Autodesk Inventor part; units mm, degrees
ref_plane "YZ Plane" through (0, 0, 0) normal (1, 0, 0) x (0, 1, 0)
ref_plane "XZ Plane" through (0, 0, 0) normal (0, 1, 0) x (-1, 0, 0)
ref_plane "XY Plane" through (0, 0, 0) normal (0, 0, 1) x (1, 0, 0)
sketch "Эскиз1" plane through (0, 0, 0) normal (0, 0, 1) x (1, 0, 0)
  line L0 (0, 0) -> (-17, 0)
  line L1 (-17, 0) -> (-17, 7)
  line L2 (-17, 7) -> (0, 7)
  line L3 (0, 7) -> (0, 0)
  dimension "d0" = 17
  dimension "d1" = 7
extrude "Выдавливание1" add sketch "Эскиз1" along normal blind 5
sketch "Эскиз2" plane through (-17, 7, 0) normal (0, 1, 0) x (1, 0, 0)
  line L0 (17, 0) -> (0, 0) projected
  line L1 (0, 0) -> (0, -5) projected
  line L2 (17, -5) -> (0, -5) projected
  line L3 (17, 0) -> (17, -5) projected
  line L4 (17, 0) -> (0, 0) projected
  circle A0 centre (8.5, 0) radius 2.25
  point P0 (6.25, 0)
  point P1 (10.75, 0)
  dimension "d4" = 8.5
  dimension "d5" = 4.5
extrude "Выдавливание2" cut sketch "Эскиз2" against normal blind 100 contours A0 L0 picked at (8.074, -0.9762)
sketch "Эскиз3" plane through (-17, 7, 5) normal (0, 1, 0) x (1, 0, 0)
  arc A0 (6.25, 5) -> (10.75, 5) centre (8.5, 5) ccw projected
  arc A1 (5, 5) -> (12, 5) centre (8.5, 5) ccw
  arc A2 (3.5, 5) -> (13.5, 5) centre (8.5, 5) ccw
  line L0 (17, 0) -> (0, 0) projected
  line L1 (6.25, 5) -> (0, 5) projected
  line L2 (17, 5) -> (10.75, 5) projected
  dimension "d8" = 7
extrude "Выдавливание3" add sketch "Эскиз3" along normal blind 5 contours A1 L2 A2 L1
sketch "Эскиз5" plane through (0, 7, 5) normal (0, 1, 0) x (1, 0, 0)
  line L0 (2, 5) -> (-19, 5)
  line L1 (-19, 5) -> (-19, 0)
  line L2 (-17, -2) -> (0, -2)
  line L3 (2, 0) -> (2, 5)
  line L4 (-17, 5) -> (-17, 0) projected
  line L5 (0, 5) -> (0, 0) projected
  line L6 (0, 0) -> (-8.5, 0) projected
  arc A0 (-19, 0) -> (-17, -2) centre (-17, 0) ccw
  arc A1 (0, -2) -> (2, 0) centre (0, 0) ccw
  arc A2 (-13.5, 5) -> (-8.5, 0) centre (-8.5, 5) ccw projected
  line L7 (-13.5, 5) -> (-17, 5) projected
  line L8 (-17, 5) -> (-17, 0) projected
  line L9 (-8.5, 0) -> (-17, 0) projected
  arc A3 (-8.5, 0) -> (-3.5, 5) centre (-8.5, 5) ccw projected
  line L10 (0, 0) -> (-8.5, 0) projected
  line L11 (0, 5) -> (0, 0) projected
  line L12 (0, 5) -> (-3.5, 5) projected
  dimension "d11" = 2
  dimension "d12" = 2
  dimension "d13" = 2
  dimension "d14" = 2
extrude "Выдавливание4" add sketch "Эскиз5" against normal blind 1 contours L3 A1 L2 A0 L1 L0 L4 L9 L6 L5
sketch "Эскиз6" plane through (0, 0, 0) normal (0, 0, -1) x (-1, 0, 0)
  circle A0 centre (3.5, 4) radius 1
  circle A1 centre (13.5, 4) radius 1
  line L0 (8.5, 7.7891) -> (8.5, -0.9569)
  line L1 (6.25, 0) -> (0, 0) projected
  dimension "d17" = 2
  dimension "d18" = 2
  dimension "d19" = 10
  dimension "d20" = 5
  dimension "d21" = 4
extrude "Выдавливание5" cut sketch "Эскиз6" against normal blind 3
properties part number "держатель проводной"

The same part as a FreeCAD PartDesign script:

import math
import FreeCAD as App
import Part
import Sketcher
Q = App.Units.Quantity

doc = App.newDocument("Part")
params = doc.addObject("Spreadsheet::Sheet", "Params")
for row, (alias, value) in enumerate([
    ("sketch1_width", "17 mm"),
    ("sketch1_height", "7 mm"),
    ("pad1_length", "5 mm"),
    ("sketch2_radius", "2.25 mm"),
    ("pocket1_length", "100 mm"),
    ("sketch3_radius", "3.5 mm"),
    ("sketch3_radius2", "5 mm"),
    ("pad2_length", "5 mm"),
    ("sketch4_radius", "2 mm"),
    ("sketch4_width", "17 mm"),
    ("sketch4_height", "5 mm"),
    ("pad3_length", "1 mm"),
    ("sketch5_diameter", "2 mm"),
    ("pocket2_length", "3 mm"),
], start=1):
    params.set(f"A{row}", alias)
    params.set(f"B{row}", "=" + value)
    params.setAlias(f"B{row}", alias)

body = doc.addObject("PartDesign::Body", "Body")

sketch1 = body.newObject("Sketcher::SketchObject", "Sketch")
sketch1.AttachmentSupport = (doc.getObject("XY_Plane"), [""])
sketch1.MapMode = "FlatFace"
sketch1.addGeometry([
    Part.LineSegment(App.Vector(-17, 0, 0), App.Vector(0, 0, 0)),
    Part.LineSegment(App.Vector(0, 0, 0), App.Vector(0, 7, 0)),
    Part.LineSegment(App.Vector(0, 7, 0), App.Vector(-17, 7, 0)),
    Part.LineSegment(App.Vector(-17, 7, 0), App.Vector(-17, 0, 0)),
], False)
sketch1.addConstraint([
    Sketcher.Constraint("Coincident", 0, 2, 1, 1),
    Sketcher.Constraint("Coincident", 1, 2, 2, 1),
    Sketcher.Constraint("Coincident", 2, 2, 3, 1),
    Sketcher.Constraint("Coincident", 3, 2, 0, 1),
    Sketcher.Constraint("Horizontal", 0),
    Sketcher.Constraint("Vertical", 1),
    Sketcher.Constraint("Horizontal", 2),
    Sketcher.Constraint("Vertical", 3),
    Sketcher.Constraint("Coincident", 0, 2, -1, 1),
    Sketcher.Constraint("DistanceX", 0, 1, 0, 2, Q("17 mm")),
    Sketcher.Constraint("DistanceY", 1, 1, 1, 2, Q("7 mm")),
])
sketch1.setExpression("Constraints[9]", "Params.sketch1_width")
sketch1.setExpression("Constraints[10]", "Params.sketch1_height")
pad1 = body.newObject("PartDesign::Pad", "Pad")
pad1.Profile = sketch1
pad1.setExpression("Length", "Params.pad1_length")

sketch2 = body.newObject("Sketcher::SketchObject", "Sketch001")
sketch2.AttachmentSupport = (doc.getObject("XZ_Plane"), [""])
sketch2.MapMode = "FlatFace"
sketch2.AttachmentOffset = App.Placement(App.Vector(0, 0, -7), App.Rotation())
sketch2.addGeometry([
    Part.ArcOfCircle(Part.Circle(App.Vector(-8.5, 0, 0), App.Vector(0, 0, 1), 2.2), math.radians(0), math.radians(180)),
    Part.LineSegment(App.Vector(-6.2, 0, 0), App.Vector(-10.8, 0, 0)),
], False)
sketch2.addConstraint([
    Sketcher.Constraint("Coincident", 0, 1, 1, 1),
    Sketcher.Constraint("Coincident", 1, 2, 0, 2),
    Sketcher.Constraint("Horizontal", 1),
    Sketcher.Constraint("PointOnObject", 0, 3, -1),
    Sketcher.Constraint("PointOnObject", 0, 1, -1),
    Sketcher.Constraint("Radius", 0, Q("2.25 mm")),
    Sketcher.Constraint("DistanceX", 0, 3, -1, 1, Q("8.5 mm")),
])
sketch2.setExpression("Constraints[5]", "Params.sketch2_radius")
pocket1 = body.newObject("PartDesign::Pocket", "Pocket")
pocket1.Profile = sketch2
pocket1.setExpression("Length", "Params.pocket1_length")
pocket1.Reversed = True

sketch3 = body.newObject("Sketcher::SketchObject", "Sketch002")
sketch3.AttachmentSupport = (doc.getObject("XZ_Plane"), [""])
sketch3.MapMode = "FlatFace"
sketch3.AttachmentOffset = App.Placement(App.Vector(0, 0, -7), App.Rotation())
sketch3.addGeometry([
    Part.ArcOfCircle(Part.Circle(App.Vector(-8.5, 0, 0), App.Vector(0, 0, 1), 3.5), math.radians(0), math.radians(180)),
    Part.LineSegment(App.Vector(-12, 0, 0), App.Vector(-13.5, 0, 0)),
    Part.ArcOfCircle(Part.Circle(App.Vector(-8.5, 0, 0), App.Vector(0, 0, 1), 5), math.radians(0), math.radians(180)),
    Part.LineSegment(App.Vector(-3.5, 0, 0), App.Vector(-5, 0, 0)),
], False)
sketch3.addConstraint([
    Sketcher.Constraint("Coincident", 0, 2, 1, 1),
    Sketcher.Constraint("Coincident", 1, 2, 2, 2),
    Sketcher.Constraint("Coincident", 2, 1, 3, 1),
    Sketcher.Constraint("Coincident", 3, 2, 0, 1),
    Sketcher.Constraint("Horizontal", 1),
    Sketcher.Constraint("Horizontal", 3),
    Sketcher.Constraint("Coincident", 2, 3, 0, 3),
    Sketcher.Constraint("PointOnObject", 0, 3, -1),
    Sketcher.Constraint("PointOnObject", 0, 2, -1),
    Sketcher.Constraint("PointOnObject", 2, 1, -1),
    Sketcher.Constraint("Radius", 0, Q("3.5 mm")),
    Sketcher.Constraint("Radius", 2, Q("5 mm")),
    Sketcher.Constraint("DistanceX", 0, 2, -1, 1, Q("12 mm")),
])
sketch3.setExpression("Constraints[10]", "Params.sketch3_radius")
sketch3.setExpression("Constraints[11]", "Params.sketch3_radius2")
pad2 = body.newObject("PartDesign::Pad", "Pad001")
pad2.Profile = sketch3
pad2.setExpression("Length", "Params.pad2_length")
pad2.Reversed = True

sketch4 = body.newObject("Sketcher::SketchObject", "Sketch003")
sketch4.AttachmentSupport = (doc.getObject("XZ_Plane"), [""])
sketch4.MapMode = "FlatFace"
sketch4.AttachmentOffset = App.Placement(App.Vector(0, 0, -7), App.Rotation())
sketch4.addGeometry([
    Part.LineSegment(App.Vector(2, 5, 0), App.Vector(2, 0, 0)),
    Part.LineSegment(App.Vector(2, 0, 0), App.Vector(0, 0, 0)),
    Part.LineSegment(App.Vector(0, 0, 0), App.Vector(0, 5, 0)),
    Part.LineSegment(App.Vector(0, 5, 0), App.Vector(-17, 5, 0)),
    Part.LineSegment(App.Vector(-17, 5, 0), App.Vector(-17, 0, 0)),
    Part.LineSegment(App.Vector(-17, 0, 0), App.Vector(-19, 0, 0)),
    Part.LineSegment(App.Vector(-19, 0, 0), App.Vector(-19, 5, 0)),
    Part.ArcOfCircle(Part.Circle(App.Vector(-17, 5, 0), App.Vector(0, 0, 1), 2), math.radians(90), math.radians(180)),
    Part.LineSegment(App.Vector(-17, 7, 0), App.Vector(0, 7, 0)),
    Part.ArcOfCircle(Part.Circle(App.Vector(0, 5, 0), App.Vector(0, 0, 1), 2), math.radians(0), math.radians(90)),
], False)
sketch4.addConstraint([
    Sketcher.Constraint("Coincident", 0, 2, 1, 1),
    Sketcher.Constraint("Coincident", 1, 2, 2, 1),
    Sketcher.Constraint("Coincident", 2, 2, 3, 1),
    Sketcher.Constraint("Coincident", 3, 2, 4, 1),
    Sketcher.Constraint("Coincident", 4, 2, 5, 1),
    Sketcher.Constraint("Coincident", 5, 2, 6, 1),
    Sketcher.Constraint("Tangent", 6, 2, 7, 2),
    Sketcher.Constraint("Tangent", 7, 1, 8, 1),
    Sketcher.Constraint("Tangent", 8, 2, 9, 2),
    Sketcher.Constraint("Tangent", 9, 1, 0, 1),
    Sketcher.Constraint("Vertical", 0),
    Sketcher.Constraint("Horizontal", 1),
    Sketcher.Constraint("Vertical", 2),
    Sketcher.Constraint("Horizontal", 3),
    Sketcher.Constraint("Vertical", 4),
    Sketcher.Constraint("Horizontal", 5),
    Sketcher.Constraint("Vertical", 6),
    Sketcher.Constraint("Horizontal", 8),
    Sketcher.Constraint("Coincident", 1, 2, -1, 1),
    Sketcher.Constraint("Coincident", 2, 2, 9, 3),
    Sketcher.Constraint("Coincident", 3, 2, 7, 3),
    Sketcher.Constraint("PointOnObject", 4, 2, -1),
    Sketcher.Constraint("Radius", 7, Q("2 mm")),
    Sketcher.Constraint("DistanceX", 3, 2, 3, 1, Q("17 mm")),
    Sketcher.Constraint("DistanceY", 0, 2, 0, 1, Q("5 mm")),
])
sketch4.setExpression("Constraints[22]", "Params.sketch4_radius")
sketch4.setExpression("Constraints[23]", "Params.sketch4_width")
sketch4.setExpression("Constraints[24]", "Params.sketch4_height")
pad3 = body.newObject("PartDesign::Pad", "Pad002")
pad3.Profile = sketch4
pad3.setExpression("Length", "Params.pad3_length")

sketch5 = body.newObject("Sketcher::SketchObject", "Sketch004")
sketch5.AttachmentSupport = (doc.getObject("XY_Plane"), [""])
sketch5.MapMode = "FlatFace"
sketch5.addGeometry([
    Part.Circle(App.Vector(-3.5, 4, 0), App.Vector(0, 0, 1), 1),
    Part.Circle(App.Vector(-13.5, 4, 0), App.Vector(0, 0, 1), 1),
], False)
sketch5.addConstraint([
    Sketcher.Constraint("Equal", 0, 1),
    Sketcher.Constraint("Horizontal", 0, 3, 1, 3),
    Sketcher.Constraint("Diameter", 0, Q("2 mm")),
    Sketcher.Constraint("DistanceY", -1, 1, 0, 3, Q("4 mm")),
    Sketcher.Constraint("DistanceX", 1, 3, 0, 3, Q("10 mm")),
    Sketcher.Constraint("DistanceX", 0, 3, -1, 1, Q("3.5 mm")),
])
sketch5.setExpression("Constraints[2]", "Params.sketch5_diameter")
pocket2 = body.newObject("PartDesign::Pocket", "Pocket001")
pocket2.Profile = sketch5
pocket2.setExpression("Length", "Params.pocket2_length")
pocket2.Reversed = True

doc.recompute()
